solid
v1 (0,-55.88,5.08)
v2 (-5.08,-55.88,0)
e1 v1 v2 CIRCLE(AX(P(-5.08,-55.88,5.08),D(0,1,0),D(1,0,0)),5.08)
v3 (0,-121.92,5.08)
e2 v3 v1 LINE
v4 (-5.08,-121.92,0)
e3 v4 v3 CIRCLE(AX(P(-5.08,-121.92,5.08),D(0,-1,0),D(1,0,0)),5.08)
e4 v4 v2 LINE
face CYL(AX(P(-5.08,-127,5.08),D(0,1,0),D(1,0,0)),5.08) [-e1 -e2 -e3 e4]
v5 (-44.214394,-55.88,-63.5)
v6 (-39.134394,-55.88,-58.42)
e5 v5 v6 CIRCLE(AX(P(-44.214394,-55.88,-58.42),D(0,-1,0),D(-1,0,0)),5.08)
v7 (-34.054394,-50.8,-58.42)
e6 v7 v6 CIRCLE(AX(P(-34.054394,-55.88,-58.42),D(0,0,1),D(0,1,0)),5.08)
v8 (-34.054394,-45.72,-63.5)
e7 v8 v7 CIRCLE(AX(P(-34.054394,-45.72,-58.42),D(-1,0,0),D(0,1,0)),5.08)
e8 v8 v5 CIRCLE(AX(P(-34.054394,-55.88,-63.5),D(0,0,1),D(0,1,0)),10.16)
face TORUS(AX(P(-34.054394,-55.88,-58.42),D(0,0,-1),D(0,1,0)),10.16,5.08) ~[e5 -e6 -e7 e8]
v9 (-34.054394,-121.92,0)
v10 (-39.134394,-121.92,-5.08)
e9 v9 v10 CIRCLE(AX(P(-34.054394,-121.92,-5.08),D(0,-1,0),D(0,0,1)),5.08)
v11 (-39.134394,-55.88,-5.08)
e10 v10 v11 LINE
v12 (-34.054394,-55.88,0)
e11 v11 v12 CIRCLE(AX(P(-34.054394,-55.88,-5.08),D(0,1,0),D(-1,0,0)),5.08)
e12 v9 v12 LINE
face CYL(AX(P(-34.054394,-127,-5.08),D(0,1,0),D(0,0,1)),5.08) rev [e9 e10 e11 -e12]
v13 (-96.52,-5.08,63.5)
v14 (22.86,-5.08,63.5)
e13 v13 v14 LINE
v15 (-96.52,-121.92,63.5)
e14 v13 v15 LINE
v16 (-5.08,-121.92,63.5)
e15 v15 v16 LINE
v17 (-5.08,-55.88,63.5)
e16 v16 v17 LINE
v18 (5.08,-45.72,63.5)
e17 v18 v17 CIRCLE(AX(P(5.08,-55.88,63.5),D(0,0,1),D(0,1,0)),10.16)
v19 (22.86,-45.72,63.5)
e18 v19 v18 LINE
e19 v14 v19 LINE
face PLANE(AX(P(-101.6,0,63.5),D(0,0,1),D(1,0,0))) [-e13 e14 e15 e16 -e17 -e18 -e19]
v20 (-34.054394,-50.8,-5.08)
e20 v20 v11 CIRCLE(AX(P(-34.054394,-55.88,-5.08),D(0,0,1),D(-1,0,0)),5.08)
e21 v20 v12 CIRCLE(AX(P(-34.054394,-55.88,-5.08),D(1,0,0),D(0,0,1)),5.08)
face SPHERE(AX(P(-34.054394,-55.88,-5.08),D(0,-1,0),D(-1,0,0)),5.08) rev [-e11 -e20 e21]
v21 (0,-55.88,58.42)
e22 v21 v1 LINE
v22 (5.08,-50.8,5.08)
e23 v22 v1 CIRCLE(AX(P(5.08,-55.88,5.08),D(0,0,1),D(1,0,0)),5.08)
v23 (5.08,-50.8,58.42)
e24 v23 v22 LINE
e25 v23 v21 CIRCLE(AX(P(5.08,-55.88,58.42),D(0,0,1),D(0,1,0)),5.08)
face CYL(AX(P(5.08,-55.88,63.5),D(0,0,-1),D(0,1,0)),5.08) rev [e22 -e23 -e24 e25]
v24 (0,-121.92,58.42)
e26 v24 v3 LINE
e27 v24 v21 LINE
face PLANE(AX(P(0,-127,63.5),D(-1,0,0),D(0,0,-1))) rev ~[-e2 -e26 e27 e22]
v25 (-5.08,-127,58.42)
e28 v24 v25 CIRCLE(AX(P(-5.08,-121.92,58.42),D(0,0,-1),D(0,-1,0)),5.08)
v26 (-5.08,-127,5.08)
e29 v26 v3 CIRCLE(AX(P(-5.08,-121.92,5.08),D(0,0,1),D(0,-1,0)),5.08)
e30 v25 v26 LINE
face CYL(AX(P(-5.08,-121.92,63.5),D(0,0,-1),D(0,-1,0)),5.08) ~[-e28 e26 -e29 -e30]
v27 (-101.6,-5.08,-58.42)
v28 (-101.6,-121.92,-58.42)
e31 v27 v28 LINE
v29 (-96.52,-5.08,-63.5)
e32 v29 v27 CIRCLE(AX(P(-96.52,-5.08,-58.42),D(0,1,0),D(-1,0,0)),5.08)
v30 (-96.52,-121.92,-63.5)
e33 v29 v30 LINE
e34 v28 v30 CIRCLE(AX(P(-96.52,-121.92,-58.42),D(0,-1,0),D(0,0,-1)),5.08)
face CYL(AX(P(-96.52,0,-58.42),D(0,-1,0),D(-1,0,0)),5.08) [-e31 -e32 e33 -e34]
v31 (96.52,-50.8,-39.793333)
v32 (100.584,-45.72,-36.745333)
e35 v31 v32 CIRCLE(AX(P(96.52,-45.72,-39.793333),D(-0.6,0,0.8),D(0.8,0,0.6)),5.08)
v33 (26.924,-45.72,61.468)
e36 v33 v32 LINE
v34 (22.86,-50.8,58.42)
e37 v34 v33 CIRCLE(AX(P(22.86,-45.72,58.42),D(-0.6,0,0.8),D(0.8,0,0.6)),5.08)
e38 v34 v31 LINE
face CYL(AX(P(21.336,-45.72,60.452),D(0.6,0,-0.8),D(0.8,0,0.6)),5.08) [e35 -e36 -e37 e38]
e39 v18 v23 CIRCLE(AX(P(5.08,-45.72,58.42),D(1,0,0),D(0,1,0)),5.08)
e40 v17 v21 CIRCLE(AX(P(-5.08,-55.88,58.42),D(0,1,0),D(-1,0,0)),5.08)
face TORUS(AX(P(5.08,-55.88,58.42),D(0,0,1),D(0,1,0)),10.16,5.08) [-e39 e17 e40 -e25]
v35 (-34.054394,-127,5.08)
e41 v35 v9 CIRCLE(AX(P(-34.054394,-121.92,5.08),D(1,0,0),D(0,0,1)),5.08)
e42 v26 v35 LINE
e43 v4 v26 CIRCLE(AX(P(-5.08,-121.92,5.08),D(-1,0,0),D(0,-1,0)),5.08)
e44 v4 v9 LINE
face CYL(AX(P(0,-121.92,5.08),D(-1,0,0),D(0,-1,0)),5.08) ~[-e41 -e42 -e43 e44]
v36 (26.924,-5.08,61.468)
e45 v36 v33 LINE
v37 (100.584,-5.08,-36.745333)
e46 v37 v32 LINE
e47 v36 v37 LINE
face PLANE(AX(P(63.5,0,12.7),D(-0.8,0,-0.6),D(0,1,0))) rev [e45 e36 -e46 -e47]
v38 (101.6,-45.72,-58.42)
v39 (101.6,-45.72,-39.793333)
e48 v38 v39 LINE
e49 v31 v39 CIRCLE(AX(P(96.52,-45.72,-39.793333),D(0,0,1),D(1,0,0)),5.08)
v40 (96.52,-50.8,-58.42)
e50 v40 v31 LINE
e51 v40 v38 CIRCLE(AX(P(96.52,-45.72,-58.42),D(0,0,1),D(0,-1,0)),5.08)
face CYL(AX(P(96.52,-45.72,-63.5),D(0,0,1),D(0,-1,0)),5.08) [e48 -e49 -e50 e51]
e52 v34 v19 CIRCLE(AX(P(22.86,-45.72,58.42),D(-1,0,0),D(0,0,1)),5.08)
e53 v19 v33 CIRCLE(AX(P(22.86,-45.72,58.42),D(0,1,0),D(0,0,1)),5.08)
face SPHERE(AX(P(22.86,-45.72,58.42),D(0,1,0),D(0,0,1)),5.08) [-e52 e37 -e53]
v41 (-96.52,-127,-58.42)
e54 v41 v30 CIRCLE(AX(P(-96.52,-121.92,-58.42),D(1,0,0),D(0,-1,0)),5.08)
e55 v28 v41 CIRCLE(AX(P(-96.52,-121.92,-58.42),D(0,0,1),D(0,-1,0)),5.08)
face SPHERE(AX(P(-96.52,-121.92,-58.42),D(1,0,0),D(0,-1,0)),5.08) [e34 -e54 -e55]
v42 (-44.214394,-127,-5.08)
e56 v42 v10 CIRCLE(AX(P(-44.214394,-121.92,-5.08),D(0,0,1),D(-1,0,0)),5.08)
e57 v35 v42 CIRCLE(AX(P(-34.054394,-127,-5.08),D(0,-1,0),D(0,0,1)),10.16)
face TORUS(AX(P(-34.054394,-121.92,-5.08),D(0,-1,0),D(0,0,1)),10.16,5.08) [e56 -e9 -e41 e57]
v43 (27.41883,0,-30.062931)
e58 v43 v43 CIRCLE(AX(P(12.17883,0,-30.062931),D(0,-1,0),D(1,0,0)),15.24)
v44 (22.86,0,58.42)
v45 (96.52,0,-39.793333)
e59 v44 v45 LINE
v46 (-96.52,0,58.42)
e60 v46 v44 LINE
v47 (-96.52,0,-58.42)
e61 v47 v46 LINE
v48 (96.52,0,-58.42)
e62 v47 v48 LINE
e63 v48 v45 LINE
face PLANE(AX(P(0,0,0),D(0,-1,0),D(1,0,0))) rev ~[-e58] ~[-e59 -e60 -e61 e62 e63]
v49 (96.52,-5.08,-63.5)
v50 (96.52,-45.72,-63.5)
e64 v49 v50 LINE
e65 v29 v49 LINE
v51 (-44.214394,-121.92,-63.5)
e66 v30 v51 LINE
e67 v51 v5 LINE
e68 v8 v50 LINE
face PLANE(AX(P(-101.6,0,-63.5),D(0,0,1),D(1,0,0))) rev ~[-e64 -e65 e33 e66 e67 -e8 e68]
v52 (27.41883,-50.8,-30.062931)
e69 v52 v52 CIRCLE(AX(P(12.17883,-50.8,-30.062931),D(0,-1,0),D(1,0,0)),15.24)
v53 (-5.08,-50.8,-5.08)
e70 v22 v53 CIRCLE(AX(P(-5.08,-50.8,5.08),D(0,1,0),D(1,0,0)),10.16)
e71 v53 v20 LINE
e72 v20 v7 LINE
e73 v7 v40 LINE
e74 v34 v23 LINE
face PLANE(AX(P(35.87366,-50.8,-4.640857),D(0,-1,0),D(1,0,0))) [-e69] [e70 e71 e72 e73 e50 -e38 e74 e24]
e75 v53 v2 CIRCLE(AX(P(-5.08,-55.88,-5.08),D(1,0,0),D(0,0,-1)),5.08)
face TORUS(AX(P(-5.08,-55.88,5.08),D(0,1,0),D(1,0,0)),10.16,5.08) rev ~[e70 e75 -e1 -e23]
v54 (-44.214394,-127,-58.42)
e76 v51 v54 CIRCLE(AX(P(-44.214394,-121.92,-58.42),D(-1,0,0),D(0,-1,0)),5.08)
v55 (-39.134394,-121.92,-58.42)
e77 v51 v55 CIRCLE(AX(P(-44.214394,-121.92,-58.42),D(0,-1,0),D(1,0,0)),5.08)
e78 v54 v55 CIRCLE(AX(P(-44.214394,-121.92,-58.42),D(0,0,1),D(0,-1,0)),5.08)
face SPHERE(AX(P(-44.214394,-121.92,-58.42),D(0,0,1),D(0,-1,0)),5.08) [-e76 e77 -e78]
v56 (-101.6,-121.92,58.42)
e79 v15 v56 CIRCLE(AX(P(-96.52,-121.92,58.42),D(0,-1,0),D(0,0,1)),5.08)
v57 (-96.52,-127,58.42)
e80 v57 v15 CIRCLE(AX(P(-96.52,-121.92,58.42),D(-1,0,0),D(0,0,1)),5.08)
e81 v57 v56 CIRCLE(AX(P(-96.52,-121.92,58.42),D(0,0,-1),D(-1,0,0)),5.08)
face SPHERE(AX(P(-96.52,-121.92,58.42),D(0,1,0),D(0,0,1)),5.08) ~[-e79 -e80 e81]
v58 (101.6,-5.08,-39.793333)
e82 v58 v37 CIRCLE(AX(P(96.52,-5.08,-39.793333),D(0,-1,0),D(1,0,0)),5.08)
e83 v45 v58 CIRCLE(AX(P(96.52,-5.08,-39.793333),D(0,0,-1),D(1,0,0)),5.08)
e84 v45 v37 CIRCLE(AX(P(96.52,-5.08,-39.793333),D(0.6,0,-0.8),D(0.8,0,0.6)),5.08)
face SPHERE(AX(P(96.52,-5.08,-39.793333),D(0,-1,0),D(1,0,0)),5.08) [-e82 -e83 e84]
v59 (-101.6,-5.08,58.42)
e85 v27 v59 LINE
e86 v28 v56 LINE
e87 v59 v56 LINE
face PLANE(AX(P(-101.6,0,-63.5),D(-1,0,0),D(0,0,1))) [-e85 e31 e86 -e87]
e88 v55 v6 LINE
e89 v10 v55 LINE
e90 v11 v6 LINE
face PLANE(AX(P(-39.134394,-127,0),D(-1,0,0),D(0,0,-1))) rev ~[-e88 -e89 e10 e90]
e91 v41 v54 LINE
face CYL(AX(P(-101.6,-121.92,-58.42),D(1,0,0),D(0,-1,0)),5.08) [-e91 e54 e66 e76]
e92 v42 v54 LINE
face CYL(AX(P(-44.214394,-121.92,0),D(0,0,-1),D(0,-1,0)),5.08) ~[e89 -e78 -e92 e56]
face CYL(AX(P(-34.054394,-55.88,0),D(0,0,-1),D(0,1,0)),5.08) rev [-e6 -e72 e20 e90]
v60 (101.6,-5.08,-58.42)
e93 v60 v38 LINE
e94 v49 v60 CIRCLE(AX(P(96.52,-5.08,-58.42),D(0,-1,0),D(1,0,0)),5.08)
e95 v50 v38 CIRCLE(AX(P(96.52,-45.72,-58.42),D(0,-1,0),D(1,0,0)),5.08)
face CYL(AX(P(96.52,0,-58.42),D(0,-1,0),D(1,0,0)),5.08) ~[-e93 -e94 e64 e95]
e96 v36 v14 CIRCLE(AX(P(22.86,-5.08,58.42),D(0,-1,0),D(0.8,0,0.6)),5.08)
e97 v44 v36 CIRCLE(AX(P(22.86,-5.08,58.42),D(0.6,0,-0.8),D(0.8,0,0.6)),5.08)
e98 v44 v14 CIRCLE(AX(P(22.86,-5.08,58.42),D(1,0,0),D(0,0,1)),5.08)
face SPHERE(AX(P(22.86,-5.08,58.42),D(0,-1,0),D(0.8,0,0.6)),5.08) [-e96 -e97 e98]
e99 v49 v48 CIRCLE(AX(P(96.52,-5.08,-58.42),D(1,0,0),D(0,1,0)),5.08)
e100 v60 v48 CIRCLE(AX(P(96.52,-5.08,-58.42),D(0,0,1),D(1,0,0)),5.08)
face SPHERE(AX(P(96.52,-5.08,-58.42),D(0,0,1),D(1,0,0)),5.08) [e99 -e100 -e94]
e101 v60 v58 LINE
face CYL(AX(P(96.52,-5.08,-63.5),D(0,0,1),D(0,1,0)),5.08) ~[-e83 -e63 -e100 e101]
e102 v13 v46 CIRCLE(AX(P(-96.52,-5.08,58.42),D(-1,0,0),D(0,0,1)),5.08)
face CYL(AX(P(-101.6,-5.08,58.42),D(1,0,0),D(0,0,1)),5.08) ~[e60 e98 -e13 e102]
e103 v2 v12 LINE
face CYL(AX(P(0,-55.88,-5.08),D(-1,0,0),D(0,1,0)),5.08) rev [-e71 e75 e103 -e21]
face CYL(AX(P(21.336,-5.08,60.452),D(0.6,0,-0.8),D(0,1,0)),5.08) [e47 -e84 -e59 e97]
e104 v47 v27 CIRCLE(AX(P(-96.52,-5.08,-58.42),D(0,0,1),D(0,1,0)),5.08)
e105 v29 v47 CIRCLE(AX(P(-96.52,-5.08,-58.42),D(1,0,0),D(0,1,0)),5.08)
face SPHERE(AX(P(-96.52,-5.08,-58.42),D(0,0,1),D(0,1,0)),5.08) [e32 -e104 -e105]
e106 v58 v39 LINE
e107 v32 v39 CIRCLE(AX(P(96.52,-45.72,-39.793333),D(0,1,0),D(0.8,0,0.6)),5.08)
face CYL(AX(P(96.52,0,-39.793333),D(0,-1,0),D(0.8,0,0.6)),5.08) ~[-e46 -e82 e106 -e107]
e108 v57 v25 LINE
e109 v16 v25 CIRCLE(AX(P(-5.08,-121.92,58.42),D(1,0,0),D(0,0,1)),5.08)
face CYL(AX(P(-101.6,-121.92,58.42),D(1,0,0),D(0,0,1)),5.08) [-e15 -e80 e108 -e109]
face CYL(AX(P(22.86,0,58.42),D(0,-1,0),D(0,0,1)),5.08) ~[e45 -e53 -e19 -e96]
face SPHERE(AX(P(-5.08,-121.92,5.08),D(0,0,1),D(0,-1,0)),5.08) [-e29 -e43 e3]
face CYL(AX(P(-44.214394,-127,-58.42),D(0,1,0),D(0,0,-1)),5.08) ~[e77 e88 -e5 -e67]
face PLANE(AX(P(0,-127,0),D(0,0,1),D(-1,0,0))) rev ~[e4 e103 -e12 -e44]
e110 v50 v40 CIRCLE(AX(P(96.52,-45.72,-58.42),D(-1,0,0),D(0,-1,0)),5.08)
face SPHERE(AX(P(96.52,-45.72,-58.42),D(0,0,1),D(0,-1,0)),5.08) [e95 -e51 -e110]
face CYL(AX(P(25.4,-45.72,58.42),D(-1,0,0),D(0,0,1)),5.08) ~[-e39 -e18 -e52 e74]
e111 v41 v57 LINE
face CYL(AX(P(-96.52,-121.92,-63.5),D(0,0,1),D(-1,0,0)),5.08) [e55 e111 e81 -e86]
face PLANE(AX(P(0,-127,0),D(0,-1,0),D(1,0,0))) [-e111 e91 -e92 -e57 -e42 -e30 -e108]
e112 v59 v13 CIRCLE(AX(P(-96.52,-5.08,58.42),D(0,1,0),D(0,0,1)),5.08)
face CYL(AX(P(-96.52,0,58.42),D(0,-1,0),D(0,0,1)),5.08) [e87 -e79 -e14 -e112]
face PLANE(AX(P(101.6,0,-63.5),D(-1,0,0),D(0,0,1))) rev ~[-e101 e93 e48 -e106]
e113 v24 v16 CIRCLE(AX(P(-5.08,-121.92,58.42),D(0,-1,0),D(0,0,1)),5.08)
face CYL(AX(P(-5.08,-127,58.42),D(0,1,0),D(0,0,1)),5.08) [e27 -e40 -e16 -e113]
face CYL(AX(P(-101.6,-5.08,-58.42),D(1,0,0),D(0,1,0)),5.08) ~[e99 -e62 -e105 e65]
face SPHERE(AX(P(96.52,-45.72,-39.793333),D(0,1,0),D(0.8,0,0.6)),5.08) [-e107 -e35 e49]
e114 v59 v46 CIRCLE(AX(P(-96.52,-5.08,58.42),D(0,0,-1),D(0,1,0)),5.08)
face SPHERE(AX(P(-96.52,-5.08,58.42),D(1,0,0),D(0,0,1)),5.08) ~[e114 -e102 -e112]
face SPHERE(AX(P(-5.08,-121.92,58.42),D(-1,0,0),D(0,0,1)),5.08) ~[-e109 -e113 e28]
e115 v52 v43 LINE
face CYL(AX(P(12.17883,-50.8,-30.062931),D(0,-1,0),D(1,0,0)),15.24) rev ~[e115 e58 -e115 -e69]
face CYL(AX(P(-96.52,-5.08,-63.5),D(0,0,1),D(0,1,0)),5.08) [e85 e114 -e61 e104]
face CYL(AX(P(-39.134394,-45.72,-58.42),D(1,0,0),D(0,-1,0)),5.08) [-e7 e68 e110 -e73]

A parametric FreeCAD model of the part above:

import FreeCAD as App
import Part
import Sketcher
from FreeCAD import Vector
Q = App.Units.Quantity


def edges_at(feature, points):
    """Names of the edges that pass closest to the given points."""
    edges = feature.Shape.Edges
    near = lambda p: min(range(len(edges)), key=lambda i: edges[i].distToShape(Part.Vertex(*p))[0])
    return sorted({f"Edge{near(p) + 1}" for p in points})

doc = App.newDocument("Part")
body = doc.addObject("PartDesign::Body", "Body")

# Sketch on XZ plane
sketch1 = body.newObject("Sketcher::SketchObject", "Sketch")
sketch1.AttachmentSupport = (doc.getObject("XZ_Plane"), [""])
sketch1.MapMode = "FlatFace"
sketch1.addGeometry(Part.LineSegment(Vector(-102, 64, 0), Vector(-102, -64, 0)), False)
sketch1.addGeometry(Part.LineSegment(Vector(-102, -64, 0), Vector(102, -64, 0)), False)
sketch1.addGeometry(Part.LineSegment(Vector(102, -64, 0), Vector(102, 64, 0)), False)
sketch1.addGeometry(Part.LineSegment(Vector(102, 64, 0), Vector(-102, 64, 0)), False)
sketch1.addConstraint(Sketcher.Constraint("Coincident", 0, 2, 1, 1))
sketch1.addConstraint(Sketcher.Constraint("Coincident", 1, 2, 2, 1))
sketch1.addConstraint(Sketcher.Constraint("Coincident", 2, 2, 3, 1))
sketch1.addConstraint(Sketcher.Constraint("Coincident", 3, 2, 0, 1))
sketch1.addConstraint(Sketcher.Constraint("Vertical", 0))
sketch1.addConstraint(Sketcher.Constraint("Horizontal", 1))
sketch1.addConstraint(Sketcher.Constraint("Vertical", 2))
sketch1.addConstraint(Sketcher.Constraint("Horizontal", 3))
sketch1.addConstraint(Sketcher.Constraint("Symmetric", 0, 2, 2, 2, -1, 1))
sketch1.addConstraint(Sketcher.Constraint("DistanceX", 1, 1, 1, 2, Q("8 in")))
sketch1.addConstraint(Sketcher.Constraint("DistanceY", 0, 2, 0, 1, Q("5 in")))
pad1 = body.newObject("PartDesign::Pad", "Pad")
pad1.Profile = sketch1
pad1.Length = Q("5 in")

# Sketch on XZ plane
sketch2 = body.newObject("Sketcher::SketchObject", "Sketch001")
sketch2.AttachmentSupport = (doc.getObject("XZ_Plane"), [""])
sketch2.MapMode = "FlatFace"
sketch2.AttachmentOffset = App.Placement(Vector(0, 0, 5 * 25.4), App.Rotation())
sketch2.addGeometry(Part.LineSegment(Vector(102, 64, 0), Vector(0, 64, 0)), False)
sketch2.addGeometry(Part.LineSegment(Vector(0, 64, 0), Vector(0, 0, 0)), False)
sketch2.addGeometry(Part.LineSegment(Vector(0, 0, 0), Vector(-39, 0, 0)), False)
sketch2.addGeometry(Part.LineSegment(Vector(-39, 0, 0), Vector(-39, -64, 0)), False)
sketch2.addGeometry(Part.LineSegment(Vector(-39, -64, 0), Vector(102, -64, 0)), False)
sketch2.addGeometry(Part.LineSegment(Vector(102, -64, 0), Vector(102, 64, 0)), False)
sketch2.addConstraint(Sketcher.Constraint("Coincident", 0, 2, 1, 1))
sketch2.addConstraint(Sketcher.Constraint("Coincident", 1, 2, 2, 1))
sketch2.addConstraint(Sketcher.Constraint("Coincident", 2, 2, 3, 1))
sketch2.addConstraint(Sketcher.Constraint("Coincident", 3, 2, 4, 1))
sketch2.addConstraint(Sketcher.Constraint("Coincident", 4, 2, 5, 1))
sketch2.addConstraint(Sketcher.Constraint("Coincident", 5, 2, 0, 1))
sketch2.addConstraint(Sketcher.Constraint("Horizontal", 0))
sketch2.addConstraint(Sketcher.Constraint("Vertical", 1))
sketch2.addConstraint(Sketcher.Constraint("Horizontal", 2))
sketch2.addConstraint(Sketcher.Constraint("Vertical", 3))
sketch2.addConstraint(Sketcher.Constraint("Horizontal", 4))
sketch2.addConstraint(Sketcher.Constraint("Vertical", 5))
sketch2.addConstraint(Sketcher.Constraint("Coincident", 1, 2, -1, 1))
sketch2.addConstraint(Sketcher.Constraint("Equal", 1, 3))
sketch2.addConstraint(Sketcher.Constraint("DistanceX", 0, 2, 0, 1, Q("4 in")))
sketch2.addConstraint(Sketcher.Constraint("DistanceY", 5, 1, 5, 2, Q("5 in")))
sketch2.addConstraint(Sketcher.Constraint("DistanceX", 2, 2, 2, 1, Q("39.134394 mm")))
pocket1 = body.newObject("PartDesign::Pocket", "Pocket")
pocket1.Profile = sketch2
pocket1.Length = Q("3 in")
doc.recompute()

chamfer = body.newObject("PartDesign::Chamfer", "Chamfer")
chamfer.Base = (pocket1, edges_at(pocket1, [(101.6, -25.4, 63.5)]))
chamfer.ChamferType = "Two distances"
chamfer.Size = Q("3 in")
chamfer.Size2 = Q("4 in")
doc.recompute()

fillet = body.newObject("PartDesign::Fillet", "Fillet")
fillet.Base = (chamfer, ["Edge1"])
fillet.UseAllEdges = True
fillet.Radius = Q("0.2 in")

# Sketch on XZ plane
sketch3 = body.newObject("Sketcher::SketchObject", "Sketch002")
sketch3.AttachmentSupport = (doc.getObject("XZ_Plane"), [""])
sketch3.MapMode = "FlatFace"
sketch3.AttachmentOffset = App.Placement(Vector(0, 0, 2 * 25.4), App.Rotation())
sketch3.addGeometry(Part.Circle(Vector(12, -30, 0), Vector(0, 0, 1), 15), False)
sketch3.addConstraint(Sketcher.Constraint("Diameter", 0, Q("1.2 in")))
sketch3.addConstraint(Sketcher.Constraint("DistanceX", -1, 1, 0, 3, Q("12.17883 mm")))
sketch3.addConstraint(Sketcher.Constraint("DistanceY", 0, 3, -1, 1, Q("30.062931 mm")))
pocket2 = body.newObject("PartDesign::Pocket", "Pocket001")
pocket2.Profile = sketch3
pocket2.Length = Q("3 in")

doc.recompute()
